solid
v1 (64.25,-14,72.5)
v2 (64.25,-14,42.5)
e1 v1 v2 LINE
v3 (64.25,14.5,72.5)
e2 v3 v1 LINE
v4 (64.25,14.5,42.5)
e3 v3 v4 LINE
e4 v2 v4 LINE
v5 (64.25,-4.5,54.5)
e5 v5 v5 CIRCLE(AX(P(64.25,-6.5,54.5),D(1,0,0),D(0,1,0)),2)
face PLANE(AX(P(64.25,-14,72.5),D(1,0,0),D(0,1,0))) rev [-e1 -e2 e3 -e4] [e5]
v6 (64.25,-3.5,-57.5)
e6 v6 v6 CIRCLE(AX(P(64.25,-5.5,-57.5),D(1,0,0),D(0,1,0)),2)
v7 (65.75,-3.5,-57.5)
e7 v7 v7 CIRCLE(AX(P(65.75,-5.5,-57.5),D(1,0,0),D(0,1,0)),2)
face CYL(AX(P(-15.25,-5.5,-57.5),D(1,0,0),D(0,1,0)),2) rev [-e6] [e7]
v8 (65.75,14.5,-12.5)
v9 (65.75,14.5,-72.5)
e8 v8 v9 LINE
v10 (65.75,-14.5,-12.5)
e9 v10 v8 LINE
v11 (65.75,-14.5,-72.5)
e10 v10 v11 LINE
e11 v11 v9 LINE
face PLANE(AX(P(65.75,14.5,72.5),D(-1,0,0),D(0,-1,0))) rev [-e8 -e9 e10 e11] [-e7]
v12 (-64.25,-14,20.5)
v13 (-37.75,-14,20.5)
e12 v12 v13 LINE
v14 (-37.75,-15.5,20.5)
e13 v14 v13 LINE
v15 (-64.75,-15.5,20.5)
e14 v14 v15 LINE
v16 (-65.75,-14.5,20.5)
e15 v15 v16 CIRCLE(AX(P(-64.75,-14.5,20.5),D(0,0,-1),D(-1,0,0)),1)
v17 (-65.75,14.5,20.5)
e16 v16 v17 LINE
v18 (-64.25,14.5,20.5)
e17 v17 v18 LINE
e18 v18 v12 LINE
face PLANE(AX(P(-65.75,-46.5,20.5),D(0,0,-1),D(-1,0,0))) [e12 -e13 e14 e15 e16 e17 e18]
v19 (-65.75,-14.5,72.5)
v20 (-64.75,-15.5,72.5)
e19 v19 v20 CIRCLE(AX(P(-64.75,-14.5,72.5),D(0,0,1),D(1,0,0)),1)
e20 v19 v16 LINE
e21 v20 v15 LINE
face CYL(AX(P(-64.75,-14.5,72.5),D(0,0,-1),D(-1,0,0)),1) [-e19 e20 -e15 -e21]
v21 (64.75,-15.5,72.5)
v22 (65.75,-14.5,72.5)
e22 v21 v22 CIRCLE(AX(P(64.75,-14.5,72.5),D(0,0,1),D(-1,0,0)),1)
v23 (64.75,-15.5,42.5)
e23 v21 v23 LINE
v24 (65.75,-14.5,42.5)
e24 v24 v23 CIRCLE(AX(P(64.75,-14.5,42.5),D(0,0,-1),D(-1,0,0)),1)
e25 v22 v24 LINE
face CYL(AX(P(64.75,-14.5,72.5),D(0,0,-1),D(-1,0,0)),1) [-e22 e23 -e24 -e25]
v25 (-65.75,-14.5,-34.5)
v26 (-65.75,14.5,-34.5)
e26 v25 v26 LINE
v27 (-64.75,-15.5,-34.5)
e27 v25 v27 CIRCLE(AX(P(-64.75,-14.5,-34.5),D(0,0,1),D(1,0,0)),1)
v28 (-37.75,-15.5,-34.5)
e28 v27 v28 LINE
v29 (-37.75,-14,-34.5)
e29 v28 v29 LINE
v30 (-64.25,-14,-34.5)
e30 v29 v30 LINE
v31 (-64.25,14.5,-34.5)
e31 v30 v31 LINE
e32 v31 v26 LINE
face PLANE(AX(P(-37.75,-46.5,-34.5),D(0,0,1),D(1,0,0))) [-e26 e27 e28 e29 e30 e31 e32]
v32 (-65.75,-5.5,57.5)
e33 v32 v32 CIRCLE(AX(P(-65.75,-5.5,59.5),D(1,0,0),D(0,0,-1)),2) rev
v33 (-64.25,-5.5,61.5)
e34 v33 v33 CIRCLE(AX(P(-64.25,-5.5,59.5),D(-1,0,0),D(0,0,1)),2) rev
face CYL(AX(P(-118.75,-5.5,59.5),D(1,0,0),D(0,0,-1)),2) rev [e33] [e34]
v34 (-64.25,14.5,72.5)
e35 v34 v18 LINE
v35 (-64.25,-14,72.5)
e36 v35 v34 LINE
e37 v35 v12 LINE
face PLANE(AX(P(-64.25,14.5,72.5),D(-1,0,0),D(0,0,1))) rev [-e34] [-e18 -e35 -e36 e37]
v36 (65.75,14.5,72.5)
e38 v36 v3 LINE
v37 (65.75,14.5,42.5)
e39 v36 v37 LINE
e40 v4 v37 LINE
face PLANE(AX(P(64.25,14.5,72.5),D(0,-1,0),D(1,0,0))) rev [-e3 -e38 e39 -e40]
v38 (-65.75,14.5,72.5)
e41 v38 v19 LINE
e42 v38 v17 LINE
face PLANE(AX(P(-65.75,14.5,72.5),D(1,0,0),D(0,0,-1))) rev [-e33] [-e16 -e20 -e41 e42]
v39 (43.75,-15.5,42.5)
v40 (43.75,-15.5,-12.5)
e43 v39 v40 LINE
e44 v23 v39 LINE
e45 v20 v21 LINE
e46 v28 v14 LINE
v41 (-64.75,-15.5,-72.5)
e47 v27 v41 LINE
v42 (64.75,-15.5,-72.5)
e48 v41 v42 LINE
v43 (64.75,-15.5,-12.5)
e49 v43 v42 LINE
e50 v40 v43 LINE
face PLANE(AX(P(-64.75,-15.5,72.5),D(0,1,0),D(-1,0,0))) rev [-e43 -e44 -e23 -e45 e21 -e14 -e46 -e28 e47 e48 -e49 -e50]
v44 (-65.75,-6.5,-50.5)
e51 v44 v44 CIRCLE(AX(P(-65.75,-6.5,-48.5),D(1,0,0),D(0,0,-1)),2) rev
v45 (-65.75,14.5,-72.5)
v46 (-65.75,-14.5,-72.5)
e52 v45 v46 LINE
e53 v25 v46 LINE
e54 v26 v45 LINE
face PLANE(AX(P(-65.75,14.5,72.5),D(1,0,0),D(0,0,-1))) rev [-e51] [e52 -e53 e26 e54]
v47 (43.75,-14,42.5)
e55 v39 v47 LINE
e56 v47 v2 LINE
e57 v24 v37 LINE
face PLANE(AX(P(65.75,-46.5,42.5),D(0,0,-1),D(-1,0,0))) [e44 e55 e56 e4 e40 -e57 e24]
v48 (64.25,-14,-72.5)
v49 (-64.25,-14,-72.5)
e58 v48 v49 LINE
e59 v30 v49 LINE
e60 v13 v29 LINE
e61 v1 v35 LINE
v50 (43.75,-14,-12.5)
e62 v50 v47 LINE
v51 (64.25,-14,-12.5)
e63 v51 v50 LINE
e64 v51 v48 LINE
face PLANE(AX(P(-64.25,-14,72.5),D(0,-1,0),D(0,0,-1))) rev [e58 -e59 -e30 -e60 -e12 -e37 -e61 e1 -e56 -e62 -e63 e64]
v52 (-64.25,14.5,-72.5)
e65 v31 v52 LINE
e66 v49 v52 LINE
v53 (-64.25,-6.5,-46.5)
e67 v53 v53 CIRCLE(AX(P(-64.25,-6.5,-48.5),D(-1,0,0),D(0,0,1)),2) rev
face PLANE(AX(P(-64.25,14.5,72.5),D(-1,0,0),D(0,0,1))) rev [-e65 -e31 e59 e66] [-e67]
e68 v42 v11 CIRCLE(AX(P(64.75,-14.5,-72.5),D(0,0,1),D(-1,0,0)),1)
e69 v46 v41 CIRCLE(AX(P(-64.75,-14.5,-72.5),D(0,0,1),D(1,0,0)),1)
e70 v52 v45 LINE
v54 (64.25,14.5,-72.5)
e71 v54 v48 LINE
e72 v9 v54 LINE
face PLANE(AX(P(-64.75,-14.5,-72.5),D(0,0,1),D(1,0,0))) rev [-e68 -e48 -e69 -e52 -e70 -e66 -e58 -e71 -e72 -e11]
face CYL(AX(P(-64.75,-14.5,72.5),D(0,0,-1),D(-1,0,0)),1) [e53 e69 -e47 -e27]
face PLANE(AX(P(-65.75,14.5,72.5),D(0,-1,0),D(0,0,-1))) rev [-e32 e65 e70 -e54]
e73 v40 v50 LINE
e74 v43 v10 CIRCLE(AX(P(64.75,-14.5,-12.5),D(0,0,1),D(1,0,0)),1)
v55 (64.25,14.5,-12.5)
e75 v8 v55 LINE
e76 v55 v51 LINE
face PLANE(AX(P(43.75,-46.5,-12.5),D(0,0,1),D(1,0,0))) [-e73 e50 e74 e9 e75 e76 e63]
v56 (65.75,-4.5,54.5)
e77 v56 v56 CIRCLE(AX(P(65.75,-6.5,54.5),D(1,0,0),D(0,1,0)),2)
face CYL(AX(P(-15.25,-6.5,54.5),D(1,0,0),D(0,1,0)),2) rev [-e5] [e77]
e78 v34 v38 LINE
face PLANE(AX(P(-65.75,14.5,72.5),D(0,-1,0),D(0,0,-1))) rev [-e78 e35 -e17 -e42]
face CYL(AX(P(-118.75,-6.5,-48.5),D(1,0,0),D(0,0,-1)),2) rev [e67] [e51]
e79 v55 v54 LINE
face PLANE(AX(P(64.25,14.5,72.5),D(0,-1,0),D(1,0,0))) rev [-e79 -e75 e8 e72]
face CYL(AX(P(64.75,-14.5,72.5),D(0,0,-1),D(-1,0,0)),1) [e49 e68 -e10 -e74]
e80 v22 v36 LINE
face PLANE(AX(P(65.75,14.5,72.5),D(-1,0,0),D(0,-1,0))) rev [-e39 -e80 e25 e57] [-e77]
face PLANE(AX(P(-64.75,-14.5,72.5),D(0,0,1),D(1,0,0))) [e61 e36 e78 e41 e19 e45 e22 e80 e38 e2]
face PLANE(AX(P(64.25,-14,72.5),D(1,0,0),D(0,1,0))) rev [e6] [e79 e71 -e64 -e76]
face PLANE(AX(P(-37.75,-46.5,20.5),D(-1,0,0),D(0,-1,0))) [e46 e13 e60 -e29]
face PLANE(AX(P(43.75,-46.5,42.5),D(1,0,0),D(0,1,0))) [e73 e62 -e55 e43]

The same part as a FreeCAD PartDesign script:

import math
import FreeCAD as App
import Part
import Sketcher

V = App.Vector
Q = App.Units.Quantity


def add_polygon(sketch, points):
    """Adds a closed chain of lines whose ends are joined by coincident constraints."""
    first, n = sketch.GeometryCount, len(points)
    for a, b in zip(points, points[1:] + points[:1]):
        sketch.addGeometry(Part.LineSegment(App.Vector(*a, 0), App.Vector(*b, 0)), False)
    for i in range(n):
        sketch.addConstraint(Sketcher.Constraint("Coincident", first + i, 2, first + (i + 1) % n, 1))

doc = App.newDocument("Part")
body = doc.addObject("PartDesign::Body", "Body")

sketch1 = body.newObject("Sketcher::SketchObject", "Sketch")
sketch1.AttachmentSupport = (doc.getObject("XY_Plane"), [""])
sketch1.MapMode = "FlatFace"
sketch1.addGeometry([
    Part.LineSegment(V(-64.2, 14.5, 0), V(-65.8, 14.5, 0)),
    Part.LineSegment(V(-65.8, 14.5, 0), V(-65.8, -14.5, 0)),
    Part.ArcOfCircle(Part.Circle(V(-64.7, -14.5, 0), V(0, 0, 1), 1), math.radians(-180), math.radians(-90)),
    Part.LineSegment(V(-64.8, -15.5, 0), V(64.8, -15.5, 0)),
    Part.ArcOfCircle(Part.Circle(V(64.7, -14.5, 0), V(0, 0, 1), 1), math.radians(-90), math.radians(0)),
    Part.LineSegment(V(65.8, -14.5, 0), V(65.8, 14.5, 0)),
    Part.LineSegment(V(65.8, 14.5, 0), V(64.2, 14.5, 0)),
    Part.LineSegment(V(64.2, 14.5, 0), V(64.2, -14, 0)),
    Part.LineSegment(V(64.2, -14, 0), V(-64.2, -14, 0)),
    Part.LineSegment(V(-64.2, -14, 0), V(-64.2, 14.5, 0)),
], False)
sketch1.addConstraint([
    Sketcher.Constraint("Coincident", 0, 2, 1, 1),
    Sketcher.Constraint("Tangent", 1, 2, 2, 1),
    Sketcher.Constraint("Tangent", 2, 2, 3, 1),
    Sketcher.Constraint("Tangent", 3, 2, 4, 1),
    Sketcher.Constraint("Tangent", 4, 2, 5, 1),
    Sketcher.Constraint("Coincident", 5, 2, 6, 1),
    Sketcher.Constraint("Coincident", 6, 2, 7, 1),
    Sketcher.Constraint("Coincident", 7, 2, 8, 1),
    Sketcher.Constraint("Coincident", 8, 2, 9, 1),
    Sketcher.Constraint("Coincident", 9, 2, 0, 1),
    Sketcher.Constraint("Horizontal", 0),
    Sketcher.Constraint("Vertical", 1),
    Sketcher.Constraint("Horizontal", 3),
    Sketcher.Constraint("Vertical", 5),
    Sketcher.Constraint("Horizontal", 6),
    Sketcher.Constraint("Vertical", 7),
    Sketcher.Constraint("Horizontal", 8),
    Sketcher.Constraint("Vertical", 9),
    Sketcher.Constraint("Equal", 2, 4),
    Sketcher.Constraint("Symmetric", 0, 2, 4, 2, -1, 1),
    Sketcher.Constraint("Symmetric", 6, 2, 9, 2, -2),
    Sketcher.Constraint("Radius", 2, Q("1 mm")),
    Sketcher.Constraint("DistanceY", 1, 2, 1, 1, Q("29 mm")),
    Sketcher.Constraint("DistanceX", 0, 2, 0, 1, Q("1.5 mm")),
    Sketcher.Constraint("DistanceX", 3, 1, 3, 2, Q("129.5 mm")),
    Sketcher.Constraint("DistanceY", 7, 2, 7, 1, Q("28.5 mm")),
])
pad1 = body.newObject("PartDesign::Pad", "Pad")
pad1.Profile = sketch1
pad1.Length = 145
pad1.Midplane = True

sketch2 = body.newObject("Sketcher::SketchObject", "Sketch001")
sketch2.AttachmentSupport = (doc.getObject("XZ_Plane"), [""])
sketch2.MapMode = "FlatFace"
sketch2.AttachmentOffset = App.Placement(V(0, 0, 15.5), App.Rotation())
add_polygon(sketch2, [(-66, 20), (-66, -34), (-38, -34), (-38, 20)])
add_polygon(sketch2, [(44, 42), (44, -12), (66, -12), (66, 42)])
sketch2.addConstraint([
    Sketcher.Constraint("Vertical", 0),
    Sketcher.Constraint("Horizontal", 1),
    Sketcher.Constraint("Vertical", 2),
    Sketcher.Constraint("Horizontal", 3),
    Sketcher.Constraint("Vertical", 4),
    Sketcher.Constraint("Horizontal", 5),
    Sketcher.Constraint("Vertical", 6),
    Sketcher.Constraint("Horizontal", 7),
    Sketcher.Constraint("Equal", 2, 4),
    Sketcher.Constraint("DistanceX", 1, 1, 1, 2, Q("28 mm")),
    Sketcher.Constraint("DistanceX", 5, 1, 5, 2, Q("22 mm")),
    Sketcher.Constraint("DistanceY", 0, 2, 0, 1, Q("55 mm")),
    Sketcher.Constraint("DistanceY", 1, 2, 4, 2, Q("22 mm")),
    Sketcher.Constraint("DistanceY", 0, 2, -1, 1, Q("34.5 mm")),
    Sketcher.Constraint("DistanceX", 1, 2, 4, 2, Q("81.5 mm")),
    Sketcher.Constraint("DistanceX", 0, 2, -1, 1, Q("65.75 mm")),
])
pocket1 = body.newObject("PartDesign::Pocket", "Pocket")
pocket1.Profile = sketch2
pocket1.Type = "ThroughAll"
pocket1.Midplane = True

sketch3 = body.newObject("Sketcher::SketchObject", "Sketch002")
sketch3.AttachmentSupport = (doc.getObject("YZ_Plane"), [""])
sketch3.MapMode = "FlatFace"
sketch3.AttachmentOffset = App.Placement(V(0, 0, -65.75), App.Rotation())
sketch3.addGeometry([
    Part.Circle(V(-5.5, 59.5, 0), V(0, 0, 1), 2),
    Part.Circle(V(-6.5, -48.5, 0), V(0, 0, 1), 2),
], False)
sketch3.addConstraint([
    Sketcher.Constraint("Equal", 0, 1),
    Sketcher.Constraint("Diameter", 0, Q("4 mm")),
    Sketcher.Constraint("DistanceX", 1, 3, 0, 3, Q("1 mm")),
    Sketcher.Constraint("DistanceY", 1, 3, 0, 3, Q("108 mm")),
    Sketcher.Constraint("DistanceX", 0, 3, -1, 1, Q("5.5 mm")),
    Sketcher.Constraint("DistanceY", -1, 1, 0, 3, Q("59.5 mm")),
])
pocket2 = body.newObject("PartDesign::Pocket", "Pocket001")
pocket2.Profile = sketch3
pocket2.Type = "TwoLengths"
pocket2.Length = 53
pocket2.Length2 = 81

sketch4 = body.newObject("Sketcher::SketchObject", "Sketch003")
sketch4.AttachmentSupport = (doc.getObject("YZ_Plane"), [""])
sketch4.MapMode = "FlatFace"
sketch4.AttachmentOffset = App.Placement(V(0, 0, 65.75), App.Rotation())
sketch4.addGeometry([
    Part.Circle(V(-6.5, 54.5, 0), V(0, 0, 1), 2),
    Part.Circle(V(-5.5, -57.5, 0), V(0, 0, 1), 2),
], False)
sketch4.addConstraint([
    Sketcher.Constraint("Equal", 0, 1),
    Sketcher.Constraint("Diameter", 0, Q("4 mm")),
    Sketcher.Constraint("DistanceX", 0, 3, 1, 3, Q("1 mm")),
    Sketcher.Constraint("DistanceY", 1, 3, 0, 3, Q("112 mm")),
    Sketcher.Constraint("DistanceX", 0, 3, -1, 1, Q("6.5 mm")),
    Sketcher.Constraint("DistanceY", -1, 1, 0, 3, Q("54.5 mm")),
])
pocket3 = body.newObject("PartDesign::Pocket", "Pocket002")
pocket3.Profile = sketch4
pocket3.Length = 81

doc.recompute()
